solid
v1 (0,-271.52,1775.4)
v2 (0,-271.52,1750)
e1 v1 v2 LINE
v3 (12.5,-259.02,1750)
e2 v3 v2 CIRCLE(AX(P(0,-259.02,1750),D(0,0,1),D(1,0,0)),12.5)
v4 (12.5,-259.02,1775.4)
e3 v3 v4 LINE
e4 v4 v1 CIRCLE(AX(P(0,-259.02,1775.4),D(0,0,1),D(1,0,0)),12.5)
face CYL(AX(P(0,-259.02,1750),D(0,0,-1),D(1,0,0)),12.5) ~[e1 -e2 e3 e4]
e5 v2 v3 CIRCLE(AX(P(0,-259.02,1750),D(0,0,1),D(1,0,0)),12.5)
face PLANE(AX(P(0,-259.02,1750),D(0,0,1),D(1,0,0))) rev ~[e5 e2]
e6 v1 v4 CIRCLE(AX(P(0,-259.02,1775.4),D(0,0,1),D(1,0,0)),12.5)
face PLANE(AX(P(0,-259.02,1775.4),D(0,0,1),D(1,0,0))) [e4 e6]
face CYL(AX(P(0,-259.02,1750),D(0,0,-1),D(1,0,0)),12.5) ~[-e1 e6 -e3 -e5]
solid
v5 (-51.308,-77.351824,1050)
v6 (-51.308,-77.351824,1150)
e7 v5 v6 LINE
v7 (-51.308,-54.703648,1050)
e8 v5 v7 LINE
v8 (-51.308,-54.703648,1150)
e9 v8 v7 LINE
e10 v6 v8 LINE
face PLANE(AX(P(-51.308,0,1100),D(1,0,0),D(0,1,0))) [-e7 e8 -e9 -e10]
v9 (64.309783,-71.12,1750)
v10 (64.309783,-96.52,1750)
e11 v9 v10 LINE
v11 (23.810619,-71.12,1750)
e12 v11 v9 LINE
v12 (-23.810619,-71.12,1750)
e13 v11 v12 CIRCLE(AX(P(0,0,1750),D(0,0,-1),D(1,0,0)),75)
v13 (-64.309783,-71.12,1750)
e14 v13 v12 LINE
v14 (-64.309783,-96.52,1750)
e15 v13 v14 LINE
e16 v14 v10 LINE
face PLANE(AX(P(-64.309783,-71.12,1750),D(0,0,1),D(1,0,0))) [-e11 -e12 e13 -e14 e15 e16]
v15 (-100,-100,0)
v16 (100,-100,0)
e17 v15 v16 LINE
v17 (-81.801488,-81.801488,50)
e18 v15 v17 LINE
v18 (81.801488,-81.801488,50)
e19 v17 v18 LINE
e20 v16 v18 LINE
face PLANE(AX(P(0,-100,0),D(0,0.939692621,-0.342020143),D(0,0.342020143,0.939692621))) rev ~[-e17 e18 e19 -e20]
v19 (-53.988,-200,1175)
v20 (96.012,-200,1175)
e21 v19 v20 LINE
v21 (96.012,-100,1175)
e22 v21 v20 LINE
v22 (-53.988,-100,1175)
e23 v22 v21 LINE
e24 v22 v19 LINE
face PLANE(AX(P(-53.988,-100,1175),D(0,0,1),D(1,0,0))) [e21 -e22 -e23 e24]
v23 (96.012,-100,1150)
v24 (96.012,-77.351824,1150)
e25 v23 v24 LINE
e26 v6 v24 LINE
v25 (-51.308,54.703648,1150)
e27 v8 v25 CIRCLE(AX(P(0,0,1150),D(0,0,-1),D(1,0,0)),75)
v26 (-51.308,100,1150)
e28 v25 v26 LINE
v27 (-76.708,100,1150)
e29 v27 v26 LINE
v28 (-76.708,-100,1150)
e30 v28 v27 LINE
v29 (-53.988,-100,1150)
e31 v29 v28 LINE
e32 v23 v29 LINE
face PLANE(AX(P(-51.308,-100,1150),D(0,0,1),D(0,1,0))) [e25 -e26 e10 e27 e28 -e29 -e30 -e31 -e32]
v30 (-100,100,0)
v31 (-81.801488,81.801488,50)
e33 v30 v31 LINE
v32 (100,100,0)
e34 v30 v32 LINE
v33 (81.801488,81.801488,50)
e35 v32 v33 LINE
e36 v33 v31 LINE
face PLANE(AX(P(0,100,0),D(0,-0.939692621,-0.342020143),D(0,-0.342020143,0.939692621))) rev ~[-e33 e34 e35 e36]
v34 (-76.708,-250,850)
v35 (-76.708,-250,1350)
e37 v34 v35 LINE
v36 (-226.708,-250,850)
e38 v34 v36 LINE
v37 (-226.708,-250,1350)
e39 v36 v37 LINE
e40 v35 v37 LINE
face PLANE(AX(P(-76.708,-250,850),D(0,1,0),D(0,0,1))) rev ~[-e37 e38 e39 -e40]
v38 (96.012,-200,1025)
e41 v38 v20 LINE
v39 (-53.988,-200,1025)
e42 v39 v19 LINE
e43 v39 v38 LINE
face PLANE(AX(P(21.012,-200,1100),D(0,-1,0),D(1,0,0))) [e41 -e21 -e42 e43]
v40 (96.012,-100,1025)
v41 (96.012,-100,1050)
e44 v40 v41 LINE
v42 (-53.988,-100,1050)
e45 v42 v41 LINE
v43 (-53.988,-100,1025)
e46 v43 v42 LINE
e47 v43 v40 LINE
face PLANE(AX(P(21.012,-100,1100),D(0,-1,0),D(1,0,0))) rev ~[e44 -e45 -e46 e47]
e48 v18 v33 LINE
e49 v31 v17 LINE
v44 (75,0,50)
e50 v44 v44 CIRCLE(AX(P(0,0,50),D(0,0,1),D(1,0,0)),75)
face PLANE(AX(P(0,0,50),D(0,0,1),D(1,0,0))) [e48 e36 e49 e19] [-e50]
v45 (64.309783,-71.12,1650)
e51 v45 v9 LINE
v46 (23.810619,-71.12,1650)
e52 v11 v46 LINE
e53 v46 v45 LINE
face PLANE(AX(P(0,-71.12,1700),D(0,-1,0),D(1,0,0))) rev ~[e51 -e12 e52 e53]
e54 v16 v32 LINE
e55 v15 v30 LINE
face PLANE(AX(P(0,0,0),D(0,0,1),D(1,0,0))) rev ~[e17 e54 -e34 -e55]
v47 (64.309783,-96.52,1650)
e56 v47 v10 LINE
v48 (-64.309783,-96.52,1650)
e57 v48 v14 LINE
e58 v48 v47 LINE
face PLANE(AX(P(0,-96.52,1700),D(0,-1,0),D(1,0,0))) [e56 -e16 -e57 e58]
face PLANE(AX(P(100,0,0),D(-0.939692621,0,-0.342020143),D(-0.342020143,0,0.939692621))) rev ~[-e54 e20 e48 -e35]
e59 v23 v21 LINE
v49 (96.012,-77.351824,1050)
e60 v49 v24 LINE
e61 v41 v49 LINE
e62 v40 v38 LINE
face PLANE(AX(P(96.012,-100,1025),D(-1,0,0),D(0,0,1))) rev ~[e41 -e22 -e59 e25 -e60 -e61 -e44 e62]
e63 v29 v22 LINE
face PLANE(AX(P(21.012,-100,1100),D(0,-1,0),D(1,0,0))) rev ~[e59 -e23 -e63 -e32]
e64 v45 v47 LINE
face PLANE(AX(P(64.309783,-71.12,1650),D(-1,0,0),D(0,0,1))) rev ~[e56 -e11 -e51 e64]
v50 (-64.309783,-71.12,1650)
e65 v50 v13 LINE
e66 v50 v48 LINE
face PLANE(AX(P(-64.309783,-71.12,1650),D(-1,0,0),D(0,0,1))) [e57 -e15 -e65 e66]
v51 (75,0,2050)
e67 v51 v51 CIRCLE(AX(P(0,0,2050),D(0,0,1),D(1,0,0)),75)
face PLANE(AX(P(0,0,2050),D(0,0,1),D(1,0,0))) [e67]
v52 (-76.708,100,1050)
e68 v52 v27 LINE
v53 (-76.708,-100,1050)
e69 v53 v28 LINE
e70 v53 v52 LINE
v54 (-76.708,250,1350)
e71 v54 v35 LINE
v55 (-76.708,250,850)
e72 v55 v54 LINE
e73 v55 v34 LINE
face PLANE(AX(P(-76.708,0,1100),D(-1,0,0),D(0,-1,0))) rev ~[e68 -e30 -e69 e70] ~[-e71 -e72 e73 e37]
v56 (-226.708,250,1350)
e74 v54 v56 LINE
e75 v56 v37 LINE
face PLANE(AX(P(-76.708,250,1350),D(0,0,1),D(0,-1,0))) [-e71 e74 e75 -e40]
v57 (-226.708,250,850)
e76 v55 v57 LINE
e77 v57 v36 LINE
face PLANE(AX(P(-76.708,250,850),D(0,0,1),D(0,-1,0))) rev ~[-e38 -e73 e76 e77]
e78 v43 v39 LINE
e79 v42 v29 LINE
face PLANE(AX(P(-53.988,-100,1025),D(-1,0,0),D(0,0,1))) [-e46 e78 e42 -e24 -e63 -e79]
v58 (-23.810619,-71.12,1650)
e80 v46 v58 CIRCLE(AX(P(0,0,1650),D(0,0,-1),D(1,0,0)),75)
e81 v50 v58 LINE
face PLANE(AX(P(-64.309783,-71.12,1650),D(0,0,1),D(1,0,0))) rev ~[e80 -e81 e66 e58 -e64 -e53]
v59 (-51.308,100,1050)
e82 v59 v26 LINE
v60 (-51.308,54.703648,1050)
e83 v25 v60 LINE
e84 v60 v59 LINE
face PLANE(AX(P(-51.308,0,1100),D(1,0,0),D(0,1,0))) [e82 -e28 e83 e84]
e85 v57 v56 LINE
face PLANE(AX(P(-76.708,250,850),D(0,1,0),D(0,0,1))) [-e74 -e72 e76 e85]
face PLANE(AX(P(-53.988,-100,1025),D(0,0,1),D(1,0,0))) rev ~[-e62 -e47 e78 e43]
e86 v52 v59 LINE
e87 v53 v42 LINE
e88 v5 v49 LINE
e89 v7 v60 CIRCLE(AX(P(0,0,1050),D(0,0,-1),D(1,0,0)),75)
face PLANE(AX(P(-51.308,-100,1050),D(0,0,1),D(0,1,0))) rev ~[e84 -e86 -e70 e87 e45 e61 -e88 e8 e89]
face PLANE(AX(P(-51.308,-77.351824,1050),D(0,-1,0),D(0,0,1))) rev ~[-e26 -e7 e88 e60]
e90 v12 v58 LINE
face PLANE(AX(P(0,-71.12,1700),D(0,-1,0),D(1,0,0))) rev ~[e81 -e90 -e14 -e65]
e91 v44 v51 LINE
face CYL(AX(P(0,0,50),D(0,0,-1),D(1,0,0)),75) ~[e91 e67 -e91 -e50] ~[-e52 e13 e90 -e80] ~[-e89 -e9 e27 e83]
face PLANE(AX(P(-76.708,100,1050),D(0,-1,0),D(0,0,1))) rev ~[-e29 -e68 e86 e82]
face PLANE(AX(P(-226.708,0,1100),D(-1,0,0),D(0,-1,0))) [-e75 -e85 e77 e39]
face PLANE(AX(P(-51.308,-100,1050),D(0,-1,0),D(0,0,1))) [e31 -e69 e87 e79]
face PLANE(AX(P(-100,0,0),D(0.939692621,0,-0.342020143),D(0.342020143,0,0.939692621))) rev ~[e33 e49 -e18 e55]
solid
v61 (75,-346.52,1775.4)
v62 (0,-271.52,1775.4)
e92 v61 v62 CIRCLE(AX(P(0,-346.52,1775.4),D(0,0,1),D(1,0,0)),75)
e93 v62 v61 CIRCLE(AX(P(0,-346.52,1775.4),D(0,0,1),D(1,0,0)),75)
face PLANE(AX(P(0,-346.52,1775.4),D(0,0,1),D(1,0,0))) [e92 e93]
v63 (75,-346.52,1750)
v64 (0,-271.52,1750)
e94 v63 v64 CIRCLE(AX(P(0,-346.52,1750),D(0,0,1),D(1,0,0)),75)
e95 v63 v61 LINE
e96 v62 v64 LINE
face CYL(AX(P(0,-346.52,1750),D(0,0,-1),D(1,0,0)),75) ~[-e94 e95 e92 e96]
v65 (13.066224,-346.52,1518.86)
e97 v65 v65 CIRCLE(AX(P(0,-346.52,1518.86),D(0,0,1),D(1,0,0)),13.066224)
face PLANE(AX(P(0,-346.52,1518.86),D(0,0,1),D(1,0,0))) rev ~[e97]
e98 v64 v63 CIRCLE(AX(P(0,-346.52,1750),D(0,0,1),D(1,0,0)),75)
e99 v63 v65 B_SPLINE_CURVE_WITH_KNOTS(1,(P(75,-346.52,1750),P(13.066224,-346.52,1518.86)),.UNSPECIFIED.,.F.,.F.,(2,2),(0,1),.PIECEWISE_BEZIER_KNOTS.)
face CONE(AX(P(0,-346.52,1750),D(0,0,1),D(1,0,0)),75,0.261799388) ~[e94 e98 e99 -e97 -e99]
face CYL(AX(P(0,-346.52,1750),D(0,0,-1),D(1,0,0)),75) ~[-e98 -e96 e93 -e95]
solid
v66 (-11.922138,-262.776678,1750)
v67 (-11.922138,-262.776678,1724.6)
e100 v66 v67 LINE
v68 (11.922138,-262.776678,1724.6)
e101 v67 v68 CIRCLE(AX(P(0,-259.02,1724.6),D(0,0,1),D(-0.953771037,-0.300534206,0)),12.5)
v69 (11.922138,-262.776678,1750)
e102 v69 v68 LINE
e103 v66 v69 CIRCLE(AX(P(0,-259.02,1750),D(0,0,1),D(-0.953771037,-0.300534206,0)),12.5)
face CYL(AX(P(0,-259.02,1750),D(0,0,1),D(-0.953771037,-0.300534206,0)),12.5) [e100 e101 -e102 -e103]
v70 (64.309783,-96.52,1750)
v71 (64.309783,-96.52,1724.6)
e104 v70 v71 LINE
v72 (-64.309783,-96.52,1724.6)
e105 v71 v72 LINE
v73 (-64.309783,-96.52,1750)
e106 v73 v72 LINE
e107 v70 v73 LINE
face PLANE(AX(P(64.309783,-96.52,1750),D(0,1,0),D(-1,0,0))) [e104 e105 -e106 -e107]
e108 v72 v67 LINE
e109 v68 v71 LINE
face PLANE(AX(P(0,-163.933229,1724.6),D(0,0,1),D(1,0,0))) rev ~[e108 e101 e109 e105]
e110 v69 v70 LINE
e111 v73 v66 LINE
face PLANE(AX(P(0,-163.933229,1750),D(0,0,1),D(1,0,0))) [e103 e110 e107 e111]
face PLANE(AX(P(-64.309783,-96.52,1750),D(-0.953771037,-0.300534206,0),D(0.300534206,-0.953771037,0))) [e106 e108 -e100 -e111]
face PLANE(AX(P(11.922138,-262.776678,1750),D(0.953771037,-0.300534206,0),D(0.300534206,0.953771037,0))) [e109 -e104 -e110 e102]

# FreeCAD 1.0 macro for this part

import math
import FreeCAD as App
import Part
import Sketcher
Q = App.Units.Quantity


def add_polygon(sketch, points):
    """Adds a closed chain of lines whose ends are joined by coincident constraints."""
    first, n = sketch.GeometryCount, len(points)
    for a, b in zip(points, points[1:] + points[:1]):
        sketch.addGeometry(Part.LineSegment(App.Vector(*a, 0), App.Vector(*b, 0)), False)
    for i in range(n):
        sketch.addConstraint(Sketcher.Constraint("Coincident", first + i, 2, first + (i + 1) % n, 1))

doc = App.newDocument("Part")
body = doc.addObject("PartDesign::Body", "Body")

sketch1 = body.newObject("Sketcher::SketchObject", "Sketch")
sketch1.AttachmentSupport = (doc.getObject("XY_Plane"), [""])
sketch1.MapMode = "FlatFace"
add_polygon(sketch1, [(-100, 100), (-100, -100), (100, -100), (100, 100)])
sketch1.addConstraint([
    Sketcher.Constraint("Vertical", 0),
    Sketcher.Constraint("Horizontal", 1),
    Sketcher.Constraint("Vertical", 2),
    Sketcher.Constraint("Horizontal", 3),
    Sketcher.Constraint("Symmetric", 0, 2, 2, 2, -1, 1),
    Sketcher.Constraint("Equal", 3, 0),
    Sketcher.Constraint("DistanceX", 1, 1, 1, 2, Q("200 mm")),
])
pad1 = body.newObject("PartDesign::Pad", "Pad")
pad1.Profile = sketch1
pad1.Length = 50
pad1.TaperAngle = -20

sketch2 = body.newObject("Sketcher::SketchObject", "Sketch001")
sketch2.AttachmentSupport = (doc.getObject("XY_Plane"), [""])
sketch2.MapMode = "FlatFace"
sketch2.AttachmentOffset = App.Placement(App.Vector(0, 0, 50), App.Rotation())
sketch2.addGeometry(Part.Circle(App.Vector(0, 0, 0), App.Vector(0, 0, 1), 75), False)
sketch2.addConstraint([
    Sketcher.Constraint("Coincident", 0, 3, -1, 1),
    Sketcher.Constraint("Diameter", 0, Q("150 mm")),
])
pad2 = body.newObject("PartDesign::Pad", "Pad001")
pad2.Profile = sketch2
pad2.Length = 2000

sketch3 = body.newObject("Sketcher::SketchObject", "Sketch002")
sketch3.AttachmentSupport = (doc.getObject("YZ_Plane"), [""])
sketch3.MapMode = "FlatFace"
sketch3.AttachmentOffset = App.Placement(App.Vector(0, 0, -76.708), App.Rotation())
add_polygon(sketch3, [(-100, 1150), (-100, 1050), (100, 1050), (100, 1150)])
sketch3.addConstraint([
    Sketcher.Constraint("Vertical", 0),
    Sketcher.Constraint("Horizontal", 1),
    Sketcher.Constraint("Vertical", 2),
    Sketcher.Constraint("Horizontal", 3),
    Sketcher.Constraint("DistanceX", 1, 1, 1, 2, Q("200 mm")),
    Sketcher.Constraint("DistanceY", 0, 2, 0, 1, Q("100 mm")),
    Sketcher.Constraint("DistanceX", 0, 2, -1, 1, Q("100 mm")),
    Sketcher.Constraint("DistanceY", -1, 1, 0, 2, Q("1050 mm")),
])
pad3 = body.newObject("PartDesign::Pad", "Pad002")
pad3.Profile = sketch3
pad3.Length = 25.4

sketch4 = body.newObject("Sketcher::SketchObject", "Sketch003")
sketch4.AttachmentSupport = (doc.getObject("YZ_Plane"), [""])
sketch4.MapMode = "FlatFace"
sketch4.AttachmentOffset = App.Placement(App.Vector(0, 0, -76.708), App.Rotation())
add_polygon(sketch4, [(250, 1350), (250, 850), (-250, 850), (-250, 1350)])
sketch4.addConstraint([
    Sketcher.Constraint("Vertical", 0),
    Sketcher.Constraint("Horizontal", 1),
    Sketcher.Constraint("Vertical", 2),
    Sketcher.Constraint("Horizontal", 3),
    Sketcher.Constraint("Equal", 3, 0),
    Sketcher.Constraint("DistanceX", 1, 2, 1, 1, Q("500 mm")),
    Sketcher.Constraint("DistanceX", -1, 1, 0, 2, Q("250 mm")),
    Sketcher.Constraint("DistanceY", -1, 1, 0, 2, Q("850 mm")),
])
pad4 = body.newObject("PartDesign::Pad", "Pad003")
pad4.Profile = sketch4
pad4.Length = 150
pad4.Reversed = True

sketch5 = body.newObject("Sketcher::SketchObject", "Sketch004")
sketch5.AttachmentSupport = (doc.getObject("YZ_Plane"), [""])
sketch5.MapMode = "FlatFace"
sketch5.AttachmentOffset = App.Placement(App.Vector(0, 0, -51.308), App.Rotation())
add_polygon(sketch5, [(-100, 1150), (-100, 1050), (-77, 1050), (-77, 1150)])
sketch5.addConstraint([
    Sketcher.Constraint("Vertical", 0),
    Sketcher.Constraint("Horizontal", 1),
    Sketcher.Constraint("Vertical", 2),
    Sketcher.Constraint("Horizontal", 3),
    Sketcher.Constraint("DistanceY", 0, 2, 0, 1, Q("100 mm")),
    Sketcher.Constraint("DistanceX", 0, 2, -1, 1, Q("100 mm")),
    Sketcher.Constraint("DistanceY", -1, 1, 0, 2, Q("1050 mm")),
    Sketcher.Constraint("DistanceX", 1, 1, 1, 2, Q("22.648176 mm")),
])
pad5 = body.newObject("PartDesign::Pad", "Pad004")
pad5.Profile = sketch5
pad5.Length = 147.32

sketch6 = body.newObject("Sketcher::SketchObject", "Sketch005")
sketch6.AttachmentSupport = (doc.getObject("XZ_Plane"), [""])
sketch6.MapMode = "FlatFace"
sketch6.AttachmentOffset = App.Placement(App.Vector(0, 0, 100), App.Rotation())
add_polygon(sketch6, [(-54, 1175), (-54, 1025), (96, 1025), (96, 1175)])
sketch6.addConstraint([
    Sketcher.Constraint("Vertical", 0),
    Sketcher.Constraint("Horizontal", 1),
    Sketcher.Constraint("Vertical", 2),
    Sketcher.Constraint("Horizontal", 3),
    Sketcher.Constraint("Equal", 3, 0),
    Sketcher.Constraint("DistanceX", 1, 1, 1, 2, Q("150 mm")),
    Sketcher.Constraint("DistanceY", -1, 1, 0, 2, Q("1025 mm")),
    Sketcher.Constraint("DistanceX", 0, 2, -1, 1, Q("53.988 mm")),
])
pad6 = body.newObject("PartDesign::Pad", "Pad005")
pad6.Profile = sketch6
pad6.Length = 100

sketch7 = body.newObject("Sketcher::SketchObject", "Sketch006")
sketch7.AttachmentSupport = (doc.getObject("XZ_Plane"), [""])
sketch7.MapMode = "FlatFace"
sketch7.AttachmentOffset = App.Placement(App.Vector(0, 0, 71.12), App.Rotation())
add_polygon(sketch7, [(-64, 1750), (-64, 1650), (64, 1650), (64, 1750)])
sketch7.addConstraint([
    Sketcher.Constraint("Vertical", 0),
    Sketcher.Constraint("Horizontal", 1),
    Sketcher.Constraint("Vertical", 2),
    Sketcher.Constraint("Horizontal", 3),
    Sketcher.Constraint("DistanceY", 0, 2, 0, 1, Q("100 mm")),
    Sketcher.Constraint("DistanceY", -1, 1, 0, 2, Q("1650 mm")),
    Sketcher.Constraint("DistanceX", 1, 1, 1, 2, Q("128.619566 mm")),
    Sketcher.Constraint("DistanceX", 0, 2, -1, 1, Q("64.309783 mm")),
])
pad7 = body.newObject("PartDesign::Pad", "Pad006")
pad7.Profile = sketch7
pad7.Length = 25.4
body2 = doc.addObject("PartDesign::Body", "Body001")
body2.AllowCompound = True

sketch8 = body2.newObject("Sketcher::SketchObject", "Sketch007")
sketch8.AttachmentSupport = (doc.getObject("XY_Plane001"), [""])
sketch8.MapMode = "FlatFace"
sketch8.AttachmentOffset = App.Placement(App.Vector(0, 0, 1750), App.Rotation())
sketch8.addGeometry(Part.Circle(App.Vector(0, -347, 0), App.Vector(0, 0, 1), 75), False)
sketch8.addConstraint([
    Sketcher.Constraint("PointOnObject", 0, 3, -2),
    Sketcher.Constraint("Diameter", 0, Q("150 mm")),
    Sketcher.Constraint("DistanceY", 0, 3, -1, 1, Q("346.52 mm")),
])
pad8 = body2.newObject("PartDesign::Pad", "Pad007")
pad8.Profile = sketch8
pad8.Length = 25.4
pad9 = body2.newObject("PartDesign::Pad", "Pad008")
pad9.Profile = sketch8
pad9.Length = 231.14
pad9.Reversed = True
pad9.TaperAngle = -15

sketch9 = body2.newObject("Sketcher::SketchObject", "Sketch008")
sketch9.AttachmentSupport = (doc.getObject("XY_Plane001"), [""])
sketch9.MapMode = "FlatFace"
sketch9.AttachmentOffset = App.Placement(App.Vector(0, 0, 1750), App.Rotation())
sketch9.addGeometry(Part.Circle(App.Vector(0, -259, 0), App.Vector(0, 0, 1), 12), False)
sketch9.addConstraint([
    Sketcher.Constraint("PointOnObject", 0, 3, -2),
    Sketcher.Constraint("Diameter", 0, Q("25 mm")),
    Sketcher.Constraint("DistanceY", 0, 3, -1, 1, Q("259.02 mm")),
])
pad10 = body2.newObject("PartDesign::Pad", "Pad009")
pad10.Profile = sketch9
pad10.Length = 25.4
body3 = doc.addObject("PartDesign::Body", "Body002")

sketch10 = body3.newObject("Sketcher::SketchObject", "Sketch009")
sketch10.AttachmentSupport = (doc.getObject("XY_Plane002"), [""])
sketch10.MapMode = "FlatFace"
sketch10.AttachmentOffset = App.Placement(App.Vector(0, 0, 1750), App.Rotation())
sketch10.addGeometry([
    Part.LineSegment(App.Vector(64, -97, 0), App.Vector(-64, -97, 0)),
    Part.LineSegment(App.Vector(-64, -97, 0), App.Vector(-12, -263, 0)),
    Part.ArcOfCircle(Part.Circle(App.Vector(0, -259, 0), App.Vector(0, 0, 1), 12), math.radians(-163), math.radians(-17)),
    Part.LineSegment(App.Vector(12, -263, 0), App.Vector(64, -97, 0)),
], False)
sketch10.addConstraint([
    Sketcher.Constraint("Coincident", 0, 2, 1, 1),
    Sketcher.Constraint("Tangent", 1, 2, 2, 1),
    Sketcher.Constraint("Tangent", 2, 2, 3, 1),
    Sketcher.Constraint("Coincident", 3, 2, 0, 1),
    Sketcher.Constraint("Horizontal", 0),
    Sketcher.Constraint("Symmetric", 1, 2, 2, 2, -2),
    Sketcher.Constraint("Radius", 2, Q("12.5 mm")),
    Sketcher.Constraint("DistanceY", 2, 3, 0, 2, Q("162.5 mm")),
    Sketcher.Constraint("DistanceY", 2, 3, -1, 1, Q("259.02 mm")),
    Sketcher.Constraint("DistanceX", 0, 2, 0, 1, Q("128.619566 mm")),
])
pad11 = body3.newObject("PartDesign::Pad", "Pad010")
pad11.Profile = sketch10
pad11.Length = 25.4
pad11.Reversed = True

doc.recompute()
